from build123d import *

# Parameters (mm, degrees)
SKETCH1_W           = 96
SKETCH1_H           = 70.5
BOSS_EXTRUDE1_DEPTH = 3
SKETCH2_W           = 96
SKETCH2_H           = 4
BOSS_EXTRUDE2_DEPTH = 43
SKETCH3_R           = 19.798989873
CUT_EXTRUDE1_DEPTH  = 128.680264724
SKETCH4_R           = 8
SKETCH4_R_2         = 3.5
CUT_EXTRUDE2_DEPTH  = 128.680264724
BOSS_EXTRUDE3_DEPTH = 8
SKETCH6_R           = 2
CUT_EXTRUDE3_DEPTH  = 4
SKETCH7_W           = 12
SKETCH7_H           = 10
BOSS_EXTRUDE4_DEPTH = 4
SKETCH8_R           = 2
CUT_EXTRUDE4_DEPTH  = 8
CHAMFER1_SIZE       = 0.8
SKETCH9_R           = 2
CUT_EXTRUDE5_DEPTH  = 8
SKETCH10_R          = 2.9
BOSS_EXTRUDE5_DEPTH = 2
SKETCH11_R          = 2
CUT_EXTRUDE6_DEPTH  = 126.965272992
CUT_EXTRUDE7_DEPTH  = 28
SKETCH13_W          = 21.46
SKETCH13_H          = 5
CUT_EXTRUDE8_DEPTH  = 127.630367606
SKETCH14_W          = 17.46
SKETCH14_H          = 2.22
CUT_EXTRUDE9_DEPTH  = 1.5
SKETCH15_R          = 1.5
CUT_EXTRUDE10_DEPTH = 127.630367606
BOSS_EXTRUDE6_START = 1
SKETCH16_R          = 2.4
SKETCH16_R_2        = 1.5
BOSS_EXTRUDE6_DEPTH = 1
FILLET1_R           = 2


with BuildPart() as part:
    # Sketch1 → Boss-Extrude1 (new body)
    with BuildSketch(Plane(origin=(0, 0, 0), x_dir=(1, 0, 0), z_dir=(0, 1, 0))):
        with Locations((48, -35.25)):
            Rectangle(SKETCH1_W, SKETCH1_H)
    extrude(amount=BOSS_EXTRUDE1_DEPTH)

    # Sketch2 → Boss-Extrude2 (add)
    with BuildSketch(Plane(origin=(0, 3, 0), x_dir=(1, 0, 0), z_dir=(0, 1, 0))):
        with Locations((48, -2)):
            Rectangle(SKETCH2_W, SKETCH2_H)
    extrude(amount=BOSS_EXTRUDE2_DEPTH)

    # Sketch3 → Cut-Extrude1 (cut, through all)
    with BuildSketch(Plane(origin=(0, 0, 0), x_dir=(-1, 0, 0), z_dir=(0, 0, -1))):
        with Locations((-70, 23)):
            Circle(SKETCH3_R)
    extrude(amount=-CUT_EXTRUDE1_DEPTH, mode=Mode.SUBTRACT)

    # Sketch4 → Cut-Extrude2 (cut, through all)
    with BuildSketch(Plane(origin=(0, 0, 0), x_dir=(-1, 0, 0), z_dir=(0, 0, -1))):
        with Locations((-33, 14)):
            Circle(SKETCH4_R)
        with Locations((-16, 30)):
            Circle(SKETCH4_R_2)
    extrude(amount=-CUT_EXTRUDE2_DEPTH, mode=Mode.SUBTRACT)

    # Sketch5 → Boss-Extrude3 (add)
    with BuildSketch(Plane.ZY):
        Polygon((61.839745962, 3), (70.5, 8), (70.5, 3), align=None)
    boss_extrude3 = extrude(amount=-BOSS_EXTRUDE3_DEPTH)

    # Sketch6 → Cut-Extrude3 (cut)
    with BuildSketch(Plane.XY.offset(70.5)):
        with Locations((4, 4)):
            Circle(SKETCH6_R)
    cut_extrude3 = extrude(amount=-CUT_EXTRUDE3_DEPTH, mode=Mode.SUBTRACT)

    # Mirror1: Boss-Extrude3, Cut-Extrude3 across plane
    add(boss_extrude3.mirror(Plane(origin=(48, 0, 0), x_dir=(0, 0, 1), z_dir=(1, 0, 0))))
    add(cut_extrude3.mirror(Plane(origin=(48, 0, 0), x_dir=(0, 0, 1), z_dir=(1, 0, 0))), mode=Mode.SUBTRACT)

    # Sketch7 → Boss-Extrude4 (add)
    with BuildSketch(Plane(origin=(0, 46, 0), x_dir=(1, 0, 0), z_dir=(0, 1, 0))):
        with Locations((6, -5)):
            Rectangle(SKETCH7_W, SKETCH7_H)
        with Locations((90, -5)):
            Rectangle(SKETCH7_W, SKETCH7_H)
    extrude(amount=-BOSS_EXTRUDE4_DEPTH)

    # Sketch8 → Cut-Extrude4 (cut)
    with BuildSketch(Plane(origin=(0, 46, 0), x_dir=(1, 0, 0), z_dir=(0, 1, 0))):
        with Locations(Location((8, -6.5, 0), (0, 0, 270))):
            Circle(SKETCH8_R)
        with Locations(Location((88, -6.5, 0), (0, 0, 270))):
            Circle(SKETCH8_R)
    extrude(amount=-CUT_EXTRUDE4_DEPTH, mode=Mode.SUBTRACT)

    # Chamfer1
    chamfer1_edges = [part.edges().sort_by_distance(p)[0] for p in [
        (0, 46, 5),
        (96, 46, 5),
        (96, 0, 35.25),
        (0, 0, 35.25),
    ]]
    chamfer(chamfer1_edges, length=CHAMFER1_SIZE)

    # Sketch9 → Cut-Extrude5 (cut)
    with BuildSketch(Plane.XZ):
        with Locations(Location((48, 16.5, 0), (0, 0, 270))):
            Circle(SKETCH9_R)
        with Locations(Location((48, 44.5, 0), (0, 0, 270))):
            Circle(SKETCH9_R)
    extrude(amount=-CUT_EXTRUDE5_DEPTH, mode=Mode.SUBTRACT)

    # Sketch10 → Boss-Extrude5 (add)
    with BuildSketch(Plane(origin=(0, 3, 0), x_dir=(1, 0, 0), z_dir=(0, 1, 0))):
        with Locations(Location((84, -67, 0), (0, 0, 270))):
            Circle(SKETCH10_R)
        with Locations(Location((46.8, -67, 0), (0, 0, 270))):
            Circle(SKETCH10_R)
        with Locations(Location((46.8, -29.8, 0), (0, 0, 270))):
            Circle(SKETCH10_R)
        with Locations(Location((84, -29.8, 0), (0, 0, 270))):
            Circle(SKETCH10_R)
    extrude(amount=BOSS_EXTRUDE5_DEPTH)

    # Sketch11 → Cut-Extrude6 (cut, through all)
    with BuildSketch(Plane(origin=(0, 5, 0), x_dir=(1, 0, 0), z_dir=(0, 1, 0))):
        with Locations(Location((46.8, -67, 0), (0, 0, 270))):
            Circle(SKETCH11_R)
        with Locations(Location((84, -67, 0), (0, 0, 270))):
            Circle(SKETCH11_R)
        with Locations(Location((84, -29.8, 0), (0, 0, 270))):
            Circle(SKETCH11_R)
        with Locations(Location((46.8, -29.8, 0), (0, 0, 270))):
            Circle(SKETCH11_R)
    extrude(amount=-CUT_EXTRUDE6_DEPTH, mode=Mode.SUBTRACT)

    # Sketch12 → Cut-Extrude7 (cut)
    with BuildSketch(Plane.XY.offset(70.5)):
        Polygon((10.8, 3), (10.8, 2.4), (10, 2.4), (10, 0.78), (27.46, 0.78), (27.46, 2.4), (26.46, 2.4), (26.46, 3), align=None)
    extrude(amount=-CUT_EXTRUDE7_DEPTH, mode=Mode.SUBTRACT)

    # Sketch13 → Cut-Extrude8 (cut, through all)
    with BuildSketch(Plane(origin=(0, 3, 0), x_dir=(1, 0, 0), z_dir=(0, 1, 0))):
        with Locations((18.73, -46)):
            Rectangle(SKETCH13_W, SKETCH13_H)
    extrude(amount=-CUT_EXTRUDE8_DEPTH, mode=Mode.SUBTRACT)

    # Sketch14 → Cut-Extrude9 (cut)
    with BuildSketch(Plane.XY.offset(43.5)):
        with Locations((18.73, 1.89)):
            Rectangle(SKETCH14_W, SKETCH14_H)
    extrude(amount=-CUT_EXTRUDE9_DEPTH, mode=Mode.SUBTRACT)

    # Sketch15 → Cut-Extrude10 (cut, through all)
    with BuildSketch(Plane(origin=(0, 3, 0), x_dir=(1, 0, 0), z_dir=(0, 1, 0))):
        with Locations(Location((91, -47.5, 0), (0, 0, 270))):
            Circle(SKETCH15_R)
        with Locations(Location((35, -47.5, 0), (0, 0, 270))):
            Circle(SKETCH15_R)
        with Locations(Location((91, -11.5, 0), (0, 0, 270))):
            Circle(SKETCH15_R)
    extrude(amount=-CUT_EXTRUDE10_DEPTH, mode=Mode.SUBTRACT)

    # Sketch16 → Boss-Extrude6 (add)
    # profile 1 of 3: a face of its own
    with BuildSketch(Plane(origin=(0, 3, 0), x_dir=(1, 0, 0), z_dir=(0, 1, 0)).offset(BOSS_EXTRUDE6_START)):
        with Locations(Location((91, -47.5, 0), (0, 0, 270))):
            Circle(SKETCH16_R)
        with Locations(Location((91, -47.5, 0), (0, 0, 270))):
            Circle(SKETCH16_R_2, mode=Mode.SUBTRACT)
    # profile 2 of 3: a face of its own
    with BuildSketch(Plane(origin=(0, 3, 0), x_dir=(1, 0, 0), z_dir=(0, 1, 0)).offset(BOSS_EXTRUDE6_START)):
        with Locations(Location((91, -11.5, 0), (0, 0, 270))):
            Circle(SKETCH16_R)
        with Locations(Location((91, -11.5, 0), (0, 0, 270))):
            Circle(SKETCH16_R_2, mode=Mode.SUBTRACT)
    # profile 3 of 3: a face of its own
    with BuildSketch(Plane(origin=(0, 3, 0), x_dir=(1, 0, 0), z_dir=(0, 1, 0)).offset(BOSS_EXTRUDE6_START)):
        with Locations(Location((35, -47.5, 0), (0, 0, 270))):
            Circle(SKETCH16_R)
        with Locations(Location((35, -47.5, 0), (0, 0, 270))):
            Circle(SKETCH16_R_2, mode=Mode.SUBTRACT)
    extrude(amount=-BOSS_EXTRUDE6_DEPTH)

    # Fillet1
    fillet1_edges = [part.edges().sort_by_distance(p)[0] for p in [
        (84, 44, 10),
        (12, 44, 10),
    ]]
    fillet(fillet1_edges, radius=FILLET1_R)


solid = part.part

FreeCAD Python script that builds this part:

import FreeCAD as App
import Part
import Sketcher
from FreeCAD import Vector
Q = App.Units.Quantity


def edges_at(feature, points):
    """Names of the edges that pass closest to the given points."""
    edges = feature.Shape.Edges
    near = lambda p: min(range(len(edges)), key=lambda i: edges[i].distToShape(Part.Vertex(*p))[0])
    return sorted({f"Edge{near(p) + 1}" for p in points})


def add_polygon(sketch, points):
    """Adds a closed chain of lines whose ends are joined by coincident constraints."""
    first, n = sketch.GeometryCount, len(points)
    for a, b in zip(points, points[1:] + points[:1]):
        sketch.addGeometry(Part.LineSegment(App.Vector(*a, 0), App.Vector(*b, 0)), False)
    for i in range(n):
        sketch.addConstraint(Sketcher.Constraint("Coincident", first + i, 2, first + (i + 1) % n, 1))

doc = App.newDocument("Part")
body = doc.addObject("PartDesign::Body", "Body")

# Sketch on XZ plane
sketch1 = body.newObject("Sketcher::SketchObject", "Sketch")
sketch1.AttachmentSupport = (doc.getObject("XZ_Plane"), [""])
sketch1.MapMode = "FlatFace"
add_polygon(sketch1, [(0, 0), (0, 70.5), (96, 70.5), (96, 0)])  # lines 0-3
sketch1.addConstraint([
    Sketcher.Constraint("Vertical", 0),
    Sketcher.Constraint("Horizontal", 1),
    Sketcher.Constraint("Vertical", 2),
    Sketcher.Constraint("Horizontal", 3),
    Sketcher.Constraint("Coincident", 3, 2, -1, 1),
    Sketcher.Constraint("DistanceX", 1, 1, 1, 2, 96.0),
    Sketcher.Constraint("DistanceY", 0, 1, 0, 2, 70.5),
])
pad1 = body.newObject("PartDesign::Pad", "Pad")
pad1.Profile = sketch1
pad1.Length = 3
pad1.Reversed = True

# Sketch on XZ plane
sketch2 = body.newObject("Sketcher::SketchObject", "Sketch001")
sketch2.AttachmentSupport = (doc.getObject("XZ_Plane"), [""])
sketch2.MapMode = "FlatFace"
sketch2.AttachmentOffset = App.Placement(Vector(0, 0, -3), App.Rotation())
add_polygon(sketch2, [(0, 0), (0, 4), (96, 4), (96, 0)])  # lines 0-3
sketch2.addConstraint([
    Sketcher.Constraint("Vertical", 0),
    Sketcher.Constraint("Horizontal", 1),
    Sketcher.Constraint("Vertical", 2),
    Sketcher.Constraint("Horizontal", 3),
    Sketcher.Constraint("Coincident", 3, 2, -1, 1),
    Sketcher.Constraint("DistanceX", 1, 1, 1, 2, 96.0),
    Sketcher.Constraint("DistanceY", 0, 1, 0, 2, 4.0),
])
pad2 = body.newObject("PartDesign::Pad", "Pad001")
pad2.Profile = sketch2
pad2.Length = 43
pad2.Reversed = True

# Sketch on XY plane
sketch3 = body.newObject("Sketcher::SketchObject", "Sketch002")
sketch3.AttachmentSupport = (doc.getObject("XY_Plane"), [""])
sketch3.MapMode = "FlatFace"
sketch3.addGeometry(Part.Circle(Vector(70, 23, 0), Vector(0, 0, 1), 19.79899), False)
sketch3.addConstraint([
    Sketcher.Constraint("DistanceX", -1, 1, 0, 3, 70.0),
    Sketcher.Constraint("DistanceY", -1, 1, 0, 3, 23.0),
    Sketcher.Constraint("Diameter", 0, 39.59798),
])
pocket1 = body.newObject("PartDesign::Pocket", "Pocket")
pocket1.Profile = sketch3
pocket1.Type = "ThroughAll"
pocket1.Reversed = True

# Sketch on XY plane
sketch4 = body.newObject("Sketcher::SketchObject", "Sketch003")
sketch4.AttachmentSupport = (doc.getObject("XY_Plane"), [""])
sketch4.MapMode = "FlatFace"
sketch4.addGeometry([
    Part.Circle(Vector(33, 14, 0), Vector(0, 0, 1), 8),
    Part.Circle(Vector(16, 30, 0), Vector(0, 0, 1), 3.5),
], False)
sketch4.addConstraint([
    Sketcher.Constraint("Diameter", 0, 16.0),
    Sketcher.Constraint("Diameter", 1, 7.0),
    Sketcher.Constraint("DistanceX", -1, 1, 0, 3, 33.0),
    Sketcher.Constraint("DistanceY", -1, 1, 0, 3, 14.0),
    Sketcher.Constraint("DistanceX", -1, 1, 1, 3, 16.0),
    Sketcher.Constraint("DistanceY", -1, 1, 1, 3, 30.0),
])
pocket2 = body.newObject("PartDesign::Pocket", "Pocket001")
pocket2.Profile = sketch4
pocket2.Type = "ThroughAll"
pocket2.Reversed = True

# Sketch on YZ plane
sketch5 = body.newObject("Sketcher::SketchObject", "Sketch004")
sketch5.AttachmentSupport = (doc.getObject("YZ_Plane"), [""])
sketch5.MapMode = "FlatFace"
add_polygon(sketch5, [(8, 70.5), (3, 61.839746), (3, 70.5)])  # lines 0-2
sketch5.addConstraint([
    Sketcher.Constraint("Vertical", 1),
    Sketcher.Constraint("Horizontal", 2),
    Sketcher.Constraint("DistanceX", 2, 1, 2, 2, 5.0),
    Sketcher.Constraint("Angle", 0, Q("-120 deg")),
    Sketcher.Constraint("DistanceX", -1, 1, 0, 2, 3.0),
    Sketcher.Constraint("DistanceY", -1, 1, 1, 2, 70.5),
])
pad3 = body.newObject("PartDesign::Pad", "Pad002")
pad3.Profile = sketch5
pad3.Length = 8

# Sketch on XY plane
sketch6 = body.newObject("Sketcher::SketchObject", "Sketch005")
sketch6.AttachmentSupport = (doc.getObject("XY_Plane"), [""])
sketch6.MapMode = "FlatFace"
sketch6.AttachmentOffset = App.Placement(Vector(0, 0, 70.5), App.Rotation())
sketch6.addGeometry(Part.Circle(Vector(4, 4, 0), Vector(0, 0, 1), 2), False)
sketch6.addConstraint([
    Sketcher.Constraint("Diameter", 0, 4.0),
    Sketcher.Constraint("DistanceX", -1, 1, 0, 3, 4.0),
    Sketcher.Constraint("DistanceY", -1, 1, 0, 3, 4.0),
])
pocket3 = body.newObject("PartDesign::Pocket", "Pocket002")
pocket3.Profile = sketch6
pocket3.Length = 4
doc.recompute()

datumplane = body.newObject("PartDesign::Plane", "DatumPlane")
datumplane.AttachmentSupport = (doc.getObject("YZ_Plane"), [""])
datumplane.MapMode = "FlatFace"
datumplane.AttachmentOffset = App.Placement(Vector(0, 0, 48), App.Rotation())
mirrored = body.newObject("PartDesign::Mirrored", "Mirrored")
mirrored.Originals = [pad3, pocket3]
mirrored.MirrorPlane = (datumplane, [""])
body.Tip = mirrored

# Sketch on XZ plane
sketch7 = body.newObject("Sketcher::SketchObject", "Sketch006")
sketch7.AttachmentSupport = (doc.getObject("XZ_Plane"), [""])
sketch7.MapMode = "FlatFace"
sketch7.AttachmentOffset = App.Placement(Vector(0, 0, -46), App.Rotation())
add_polygon(sketch7, [(0, 0), (0, 10), (12, 10), (12, 0)])  # lines 0-3
add_polygon(sketch7, [(84, 0), (84, 10), (96, 10), (96, 0)])  # lines 4-7
sketch7.addConstraint([
    Sketcher.Constraint("Vertical", 0),
    Sketcher.Constraint("Horizontal", 1),
    Sketcher.Constraint("Vertical", 2),
    Sketcher.Constraint("Horizontal", 3),
    Sketcher.Constraint("Vertical", 4),
    Sketcher.Constraint("Horizontal", 5),
    Sketcher.Constraint("Vertical", 6),
    Sketcher.Constraint("Horizontal", 7),
    Sketcher.Constraint("Coincident", 3, 2, -1, 1),
    Sketcher.Constraint("PointOnObject", 6, 2, -1),
    Sketcher.Constraint("Horizontal", 1, 2, 4, 2),
    Sketcher.Constraint("Equal", 3, 5),
    Sketcher.Constraint("DistanceX", 1, 1, 1, 2, 12.0),
    Sketcher.Constraint("DistanceY", 0, 1, 0, 2, 10.0),
    Sketcher.Constraint("DistanceX", -1, 1, 4, 2, 84.0),
])
pad4 = body.newObject("PartDesign::Pad", "Pad003")
pad4.Profile = sketch7
pad4.Length = 4

# Sketch on XZ plane
sketch8 = body.newObject("Sketcher::SketchObject", "Sketch007")
sketch8.AttachmentSupport = (doc.getObject("XZ_Plane"), [""])
sketch8.MapMode = "FlatFace"
sketch8.AttachmentOffset = App.Placement(Vector(0, 0, -46), App.Rotation())
sketch8.addGeometry([
    Part.Circle(Vector(8, 6.5, 0), Vector(0, 0, 1), 2),
    Part.Circle(Vector(88, 6.5, 0), Vector(0, 0, 1), 2),
], False)
sketch8.addConstraint([
    Sketcher.Constraint("Equal", 0, 1),
    Sketcher.Constraint("Horizontal", 0, 3, 1, 3),
    Sketcher.Constraint("Diameter", 0, 4.0),
    Sketcher.Constraint("DistanceX", -1, 1, 0, 3, 8.0),
    Sketcher.Constraint("DistanceX", -1, 1, 1, 3, 88.0),
    Sketcher.Constraint("DistanceY", -1, 1, 0, 3, 6.5),
])
pocket4 = body.newObject("PartDesign::Pocket", "Pocket003")
pocket4.Profile = sketch8
pocket4.Length = 8
pocket4.Reversed = True
doc.recompute()

chamfer = body.newObject("PartDesign::Chamfer", "Chamfer")
chamfer.Base = (pocket4, edges_at(pocket4, [
    (0, 46, 5),
    (96, 46, 5),
    (96, 0, 35.25),
    (0, 0, 35.25),
]))
chamfer.Size = 0.8

# Sketch on XZ plane
sketch9 = body.newObject("Sketcher::SketchObject", "Sketch008")
sketch9.AttachmentSupport = (doc.getObject("XZ_Plane"), [""])
sketch9.MapMode = "FlatFace"
sketch9.addGeometry([
    Part.Circle(Vector(48, 16.5, 0), Vector(0, 0, 1), 2),
    Part.Circle(Vector(48, 44.5, 0), Vector(0, 0, 1), 2),
], False)
sketch9.addConstraint([
    Sketcher.Constraint("Equal", 0, 1),
    Sketcher.Constraint("Vertical", 0, 3, 1, 3),
    Sketcher.Constraint("Diameter", 0, 4.0),
    Sketcher.Constraint("DistanceX", -1, 1, 0, 3, 48.0),
    Sketcher.Constraint("DistanceY", 0, 3, 1, 3, 28.0),
    Sketcher.Constraint("DistanceY", -1, 1, 0, 3, 16.5),
])
pocket5 = body.newObject("PartDesign::Pocket", "Pocket004")
pocket5.Profile = sketch9
pocket5.Length = 8

# Sketch on XZ plane
sketch10 = body.newObject("Sketcher::SketchObject", "Sketch009")
sketch10.AttachmentSupport = (doc.getObject("XZ_Plane"), [""])
sketch10.MapMode = "FlatFace"
sketch10.AttachmentOffset = App.Placement(Vector(0, 0, -3), App.Rotation())
sketch10.addGeometry([
    Part.Circle(Vector(84, 67, 0), Vector(0, 0, 1), 2.9),
    Part.Circle(Vector(46.8, 67, 0), Vector(0, 0, 1), 2.9),
    Part.Circle(Vector(46.8, 29.8, 0), Vector(0, 0, 1), 2.9),
    Part.Circle(Vector(84, 29.8, 0), Vector(0, 0, 1), 2.9),
], False)
sketch10.addConstraint([
    Sketcher.Constraint("Equal", 0, 1),
    Sketcher.Constraint("Equal", 1, 2),
    Sketcher.Constraint("Equal", 2, 3),
    Sketcher.Constraint("Horizontal", 0, 3, 1, 3),
    Sketcher.Constraint("Horizontal", 2, 3, 3, 3),
    Sketcher.Constraint("Vertical", 1, 3, 2, 3),
    Sketcher.Constraint("Vertical", 0, 3, 3, 3),
    Sketcher.Constraint("Diameter", 0, 5.8),
    Sketcher.Constraint("DistanceX", -1, 1, 0, 3, 84.0),
    Sketcher.Constraint("DistanceY", -1, 1, 0, 3, 67.0),
    Sketcher.Constraint("DistanceX", -1, 1, 1, 3, 46.8),
    Sketcher.Constraint("DistanceY", -1, 1, 2, 3, 29.8),
])
pad5 = body.newObject("PartDesign::Pad", "Pad004")
pad5.Profile = sketch10
pad5.Length = 2
pad5.Reversed = True

# Sketch on XZ plane
sketch11 = body.newObject("Sketcher::SketchObject", "Sketch010")
sketch11.AttachmentSupport = (doc.getObject("XZ_Plane"), [""])
sketch11.MapMode = "FlatFace"
sketch11.AttachmentOffset = App.Placement(Vector(0, 0, -5), App.Rotation())
sketch11.addGeometry([
    Part.Circle(Vector(46.8, 67, 0), Vector(0, 0, 1), 2),
    Part.Circle(Vector(84, 67, 0), Vector(0, 0, 1), 2),
    Part.Circle(Vector(84, 29.8, 0), Vector(0, 0, 1), 2),
    Part.Circle(Vector(46.8, 29.8, 0), Vector(0, 0, 1), 2),
], False)
sketch11.addConstraint([
    Sketcher.Constraint("Equal", 0, 1),
    Sketcher.Constraint("Equal", 1, 2),
    Sketcher.Constraint("Equal", 2, 3),
    Sketcher.Constraint("Horizontal", 0, 3, 1, 3),
    Sketcher.Constraint("Horizontal", 2, 3, 3, 3),
    Sketcher.Constraint("Vertical", 1, 3, 2, 3),
    Sketcher.Constraint("Vertical", 0, 3, 3, 3),
    Sketcher.Constraint("Diameter", 0, 4.0),
    Sketcher.Constraint("DistanceY", -1, 1, 0, 3, 67.0),
    Sketcher.Constraint("DistanceX", -1, 1, 1, 3, 84.0),
    Sketcher.Constraint("DistanceX", -1, 1, 0, 3, 46.8),
    Sketcher.Constraint("DistanceY", -1, 1, 2, 3, 29.8),
])
pocket6 = body.newObject("PartDesign::Pocket", "Pocket005")
pocket6.Profile = sketch11
pocket6.Type = "ThroughAll"
pocket6.Reversed = True

# Sketch on XY plane
sketch12 = body.newObject("Sketcher::SketchObject", "Sketch011")
sketch12.AttachmentSupport = (doc.getObject("XY_Plane"), [""])
sketch12.MapMode = "FlatFace"
sketch12.AttachmentOffset = App.Placement(Vector(0, 0, 70.5), App.Rotation())
add_polygon(sketch12, [(10.8, 3), (10.8, 2.4), (10, 2.4), (10, 0.78), (27.46, 0.78), (27.46, 2.4), (26.46, 2.4), (26.46, 3)])  # lines 0-7
sketch12.addConstraint([
    Sketcher.Constraint("Vertical", 0),
    Sketcher.Constraint("Horizontal", 1),
    Sketcher.Constraint("Vertical", 2),
    Sketcher.Constraint("Horizontal", 3),
    Sketcher.Constraint("Vertical", 4),
    Sketcher.Constraint("Horizontal", 5),
    Sketcher.Constraint("Vertical", 6),
    Sketcher.Constraint("Horizontal", 7),
    Sketcher.Constraint("Horizontal", 1, 2, 4, 2),
    Sketcher.Constraint("DistanceX", 5, 2, 5, 1, 1.0),
    Sketcher.Constraint("DistanceX", 1, 2, 1, 1, 0.8),
    Sketcher.Constraint("DistanceY", 0, 2, 0, 1, 0.6),
    Sketcher.Constraint("DistanceX", -1, 1, 1, 2, 10.0),
    Sketcher.Constraint("DistanceY", -1, 1, 6, 2, 3.0),
    Sketcher.Constraint("DistanceX", 3, 1, 3, 2, 17.46),
    Sketcher.Constraint("DistanceY", 2, 2, 2, 1, 1.62),
])
pocket7 = body.newObject("PartDesign::Pocket", "Pocket006")
pocket7.Profile = sketch12
pocket7.Length = 28

# Sketch on XZ plane
sketch13 = body.newObject("Sketcher::SketchObject", "Sketch012")
sketch13.AttachmentSupport = (doc.getObject("XZ_Plane"), [""])
sketch13.MapMode = "FlatFace"
sketch13.AttachmentOffset = App.Placement(Vector(0, 0, -3), App.Rotation())
add_polygon(sketch13, [(8, 43.5), (8, 48.5), (29.46, 48.5), (29.46, 43.5)])  # lines 0-3
sketch13.addConstraint([
    Sketcher.Constraint("Vertical", 0),
    Sketcher.Constraint("Horizontal", 1),
    Sketcher.Constraint("Vertical", 2),
    Sketcher.Constraint("Horizontal", 3),
    Sketcher.Constraint("DistanceY", 0, 1, 0, 2, 5.0),
    Sketcher.Constraint("DistanceX", -1, 1, 0, 2, 8.0),
    Sketcher.Constraint("DistanceX", 1, 1, 1, 2, 21.46),
    Sketcher.Constraint("DistanceY", -1, 1, 0, 2, 48.5),
])
pocket8 = body.newObject("PartDesign::Pocket", "Pocket007")
pocket8.Profile = sketch13
pocket8.Type = "ThroughAll"
pocket8.Reversed = True

# Sketch on XY plane
sketch14 = body.newObject("Sketcher::SketchObject", "Sketch013")
sketch14.AttachmentSupport = (doc.getObject("XY_Plane"), [""])
sketch14.MapMode = "FlatFace"
sketch14.AttachmentOffset = App.Placement(Vector(0, 0, 43.5), App.Rotation())
add_polygon(sketch14, [(10, 3), (10, 0.78), (27.46, 0.78), (27.46, 3)])  # lines 0-3
sketch14.addConstraint([
    Sketcher.Constraint("Vertical", 0),
    Sketcher.Constraint("Horizontal", 1),
    Sketcher.Constraint("Vertical", 2),
    Sketcher.Constraint("Horizontal", 3),
    Sketcher.Constraint("DistanceX", -1, 1, 0, 2, 10.0),
    Sketcher.Constraint("DistanceY", -1, 1, 2, 2, 3.0),
    Sketcher.Constraint("DistanceX", 1, 1, 1, 2, 17.46),
    Sketcher.Constraint("DistanceY", 0, 2, 0, 1, 2.22),
])
pocket9 = body.newObject("PartDesign::Pocket", "Pocket008")
pocket9.Profile = sketch14
pocket9.Length = 1.5

# Sketch on XZ plane
sketch15 = body.newObject("Sketcher::SketchObject", "Sketch014")
sketch15.AttachmentSupport = (doc.getObject("XZ_Plane"), [""])
sketch15.MapMode = "FlatFace"
sketch15.AttachmentOffset = App.Placement(Vector(0, 0, -3), App.Rotation())
sketch15.addGeometry([
    Part.Circle(Vector(91, 47.5, 0), Vector(0, 0, 1), 1.5),
    Part.Circle(Vector(35, 47.5, 0), Vector(0, 0, 1), 1.5),
    Part.Circle(Vector(91, 11.5, 0), Vector(0, 0, 1), 1.5),
], False)
sketch15.addConstraint([
    Sketcher.Constraint("Equal", 0, 1),
    Sketcher.Constraint("Equal", 1, 2),
    Sketcher.Constraint("Horizontal", 0, 3, 1, 3),
    Sketcher.Constraint("Vertical", 0, 3, 2, 3),
    Sketcher.Constraint("Diameter", 0, 3.0),
    Sketcher.Constraint("DistanceX", -1, 1, 0, 3, 91.0),
    Sketcher.Constraint("DistanceX", -1, 1, 1, 3, 35.0),
    Sketcher.Constraint("DistanceY", 2, 3, 0, 3, 36.0),
    Sketcher.Constraint("DistanceY", -1, 1, 0, 3, 47.5),
])
pocket10 = body.newObject("PartDesign::Pocket", "Pocket009")
pocket10.Profile = sketch15
pocket10.Type = "ThroughAll"
pocket10.Reversed = True

# Sketch on XZ plane
sketch16 = body.newObject("Sketcher::SketchObject", "Sketch015")
sketch16.AttachmentSupport = (doc.getObject("XZ_Plane"), [""])
sketch16.MapMode = "FlatFace"
sketch16.AttachmentOffset = App.Placement(Vector(0, 0, -4), App.Rotation())
sketch16.addGeometry([
    Part.Circle(Vector(91, 47.5, 0), Vector(0, 0, 1), 2.4),  # 0
    Part.Circle(Vector(91, 47.5, 0), Vector(0, 0, 1), 1.5),  # 1
    Part.Circle(Vector(91, 11.5, 0), Vector(0, 0, 1), 2.4),  # 2
    Part.Circle(Vector(91, 11.5, 0), Vector(0, 0, 1), 1.5),  # 3
    Part.Circle(Vector(35, 47.5, 0), Vector(0, 0, 1), 2.4),  # 4
    Part.Circle(Vector(35, 47.5, 0), Vector(0, 0, 1), 1.5),  # 5
], False)
sketch16.addConstraint([
    Sketcher.Constraint("Coincident", 1, 3, 0, 3),
    Sketcher.Constraint("Coincident", 3, 3, 2, 3),
    Sketcher.Constraint("Coincident", 5, 3, 4, 3),
    Sketcher.Constraint("Equal", 0, 2),
    Sketcher.Constraint("Equal", 1, 3),
    Sketcher.Constraint("Equal", 2, 4),
    Sketcher.Constraint("Equal", 3, 5),
    Sketcher.Constraint("Horizontal", 1, 3, 4, 3),
    Sketcher.Constraint("Vertical", 1, 3, 2, 3),
    Sketcher.Constraint("Diameter", 1, 3.0),
    Sketcher.Constraint("Diameter", 0, 4.8),
    Sketcher.Constraint("DistanceX", -1, 1, 0, 3, 91.0),
    Sketcher.Constraint("DistanceX", -1, 1, 4, 3, 35.0),
    Sketcher.Constraint("DistanceY", 2, 3, 0, 3, 36.0),
    Sketcher.Constraint("DistanceY", -1, 1, 0, 3, 47.5),
])
pad6 = body.newObject("PartDesign::Pad", "Pad005")
pad6.Profile = sketch16
pad6.Length = 1
doc.recompute()

fillet = body.newObject("PartDesign::Fillet", "Fillet")
fillet.Base = (pad6, edges_at(pad6, [(84, 44, 10), (12, 44, 10)]))
fillet.Radius = 2

doc.recompute()
